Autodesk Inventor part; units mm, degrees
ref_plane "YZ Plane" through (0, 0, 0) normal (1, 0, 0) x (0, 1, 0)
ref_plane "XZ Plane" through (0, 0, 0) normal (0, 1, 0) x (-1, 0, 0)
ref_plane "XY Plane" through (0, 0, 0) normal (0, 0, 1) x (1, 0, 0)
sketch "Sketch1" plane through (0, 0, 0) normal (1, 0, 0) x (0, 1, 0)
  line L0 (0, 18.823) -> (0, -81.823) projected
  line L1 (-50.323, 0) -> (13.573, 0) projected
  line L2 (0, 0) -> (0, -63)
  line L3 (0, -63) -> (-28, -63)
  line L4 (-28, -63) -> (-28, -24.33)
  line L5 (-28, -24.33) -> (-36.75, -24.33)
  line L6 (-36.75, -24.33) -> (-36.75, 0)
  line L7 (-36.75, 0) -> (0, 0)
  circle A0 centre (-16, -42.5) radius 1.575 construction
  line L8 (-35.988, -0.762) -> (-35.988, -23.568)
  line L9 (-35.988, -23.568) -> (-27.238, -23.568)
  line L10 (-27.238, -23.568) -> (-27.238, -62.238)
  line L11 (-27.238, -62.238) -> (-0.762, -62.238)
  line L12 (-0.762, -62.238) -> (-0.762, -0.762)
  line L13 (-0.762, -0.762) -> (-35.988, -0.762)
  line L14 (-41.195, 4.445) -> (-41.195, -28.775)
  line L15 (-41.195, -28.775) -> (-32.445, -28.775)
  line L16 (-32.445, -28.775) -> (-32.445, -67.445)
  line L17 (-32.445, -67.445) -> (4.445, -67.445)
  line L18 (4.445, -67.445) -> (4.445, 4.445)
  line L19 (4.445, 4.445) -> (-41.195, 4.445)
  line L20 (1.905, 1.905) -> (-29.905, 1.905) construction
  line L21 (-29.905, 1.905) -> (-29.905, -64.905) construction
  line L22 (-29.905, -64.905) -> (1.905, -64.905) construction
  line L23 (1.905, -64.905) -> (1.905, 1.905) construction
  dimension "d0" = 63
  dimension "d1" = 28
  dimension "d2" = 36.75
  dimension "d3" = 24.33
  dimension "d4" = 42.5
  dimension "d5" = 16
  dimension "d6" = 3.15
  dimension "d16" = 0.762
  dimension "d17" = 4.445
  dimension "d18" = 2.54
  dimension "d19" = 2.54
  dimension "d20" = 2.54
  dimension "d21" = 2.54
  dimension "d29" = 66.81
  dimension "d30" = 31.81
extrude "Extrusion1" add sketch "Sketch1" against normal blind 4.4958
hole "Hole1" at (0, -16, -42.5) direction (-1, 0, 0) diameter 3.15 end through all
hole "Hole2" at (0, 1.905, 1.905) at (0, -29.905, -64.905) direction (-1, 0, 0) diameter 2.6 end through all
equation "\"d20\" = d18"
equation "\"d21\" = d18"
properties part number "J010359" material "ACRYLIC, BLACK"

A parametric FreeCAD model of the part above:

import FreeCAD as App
import Part
import Sketcher
Q = App.Units.Quantity


def add_polygon(sketch, points):
    """Adds a closed chain of lines whose ends are joined by coincident constraints."""
    first, n = sketch.GeometryCount, len(points)
    for a, b in zip(points, points[1:] + points[:1]):
        sketch.addGeometry(Part.LineSegment(App.Vector(*a, 0), App.Vector(*b, 0)), False)
    for i in range(n):
        sketch.addConstraint(Sketcher.Constraint("Coincident", first + i, 2, first + (i + 1) % n, 1))

doc = App.newDocument("Part")
params = doc.addObject("Spreadsheet::Sheet", "Params")
for row, (alias, value) in enumerate([
    ("sketch1_width", "45.64 mm"),
    ("sketch1_width2", "8.75 mm"),
    ("sketch1_height", "71.89 mm"),
    ("sketch1_height2", "33.22 mm"),
    ("pad1_length", "4.4958 mm"),
    ("sketch2_diameter", "3.15 mm"),
    ("hole_diameter", "3.15 mm"),
    ("sketch3_diameter", "2.6 mm"),
    ("hole2_diameter", "2.6 mm"),
], start=1):
    params.set(f"A{row}", alias)
    params.set(f"B{row}", "=" + value)
    params.setAlias(f"B{row}", alias)

body = doc.addObject("PartDesign::Body", "Body")

# Sketch on YZ plane
sketch1 = doc.addObject("Sketcher::SketchObject", "Sketch")
body.addObject(sketch1)
sketch1.AttachmentSupport = (doc.YZ_Plane, [""])
sketch1.MapMode = "FlatFace"
add_polygon(sketch1, [(4, -67), (4, 4), (-41, 4), (-41, -29), (-32, -29), (-32, -67)])  # lines 0-5
add_polygon(sketch1, [(-36, -1), (-1, -1), (-1, -62), (-27, -62), (-27, -24), (-36, -24)])  # lines 6-11
sketch1.addConstraint([
    Sketcher.Constraint("Vertical", 0),
    Sketcher.Constraint("Horizontal", 1),
    Sketcher.Constraint("Vertical", 2),
    Sketcher.Constraint("Horizontal", 3),
    Sketcher.Constraint("Vertical", 4),
    Sketcher.Constraint("Horizontal", 5),
    Sketcher.Constraint("Horizontal", 6),
    Sketcher.Constraint("Vertical", 7),
    Sketcher.Constraint("Horizontal", 8),
    Sketcher.Constraint("Vertical", 9),
    Sketcher.Constraint("Horizontal", 10),
    Sketcher.Constraint("Vertical", 11),
    Sketcher.Constraint("Equal", 3, 10),
    Sketcher.Constraint("Equal", 4, 9),
    Sketcher.Constraint("DistanceX", -1, 1, 0, 2, Q("4.445 mm")),
    Sketcher.Constraint("DistanceY", -1, 1, 0, 2, Q("4.445 mm")),
    Sketcher.Constraint("DistanceX", 6, 2, -1, 1, Q("0.762 mm")),
    Sketcher.Constraint("DistanceY", 6, 2, -1, 1, Q("0.762 mm")),
    Sketcher.Constraint("DistanceX", 1, 2, 1, 1, Q("45.64 mm")),
    Sketcher.Constraint("DistanceX", 3, 1, 3, 2, Q("8.75 mm")),
    Sketcher.Constraint("DistanceY", 0, 1, 0, 2, Q("71.89 mm")),
    Sketcher.Constraint("DistanceY", 2, 2, 2, 1, Q("33.22 mm")),
    Sketcher.Constraint("DistanceX", 6, 1, 6, 2, Q("35.226 mm")),
    Sketcher.Constraint("DistanceY", 7, 2, 7, 1, Q("61.476 mm")),
])
sketch1.setExpression("Constraints[30]", "Params.sketch1_width")
sketch1.setExpression("Constraints[31]", "Params.sketch1_width2")
sketch1.setExpression("Constraints[32]", "Params.sketch1_height")
sketch1.setExpression("Constraints[33]", "Params.sketch1_height2")
pad1 = doc.addObject("PartDesign::Pad", "Pad")
body.addObject(pad1)
pad1.Profile = sketch1
pad1.setExpression("Length", "Params.pad1_length")
pad1.Reversed = True

# Sketch on YZ plane
sketch2 = doc.addObject("Sketcher::SketchObject", "Sketch001")
body.addObject(sketch2)
sketch2.AttachmentSupport = (doc.YZ_Plane, [""])
sketch2.MapMode = "FlatFace"
sketch2.addGeometry(Part.Circle(App.Vector(-16, -42.5, 0), App.Vector(0, 0, 1), 1.6), False)
sketch2.addConstraint([
    Sketcher.Constraint("Diameter", 0, Q("3.15 mm")),
    Sketcher.Constraint("DistanceX", 0, 3, -1, 1, Q("16 mm")),
    Sketcher.Constraint("DistanceY", 0, 3, -1, 1, Q("42.5 mm")),
])
sketch2.setExpression("Constraints[0]", "Params.sketch2_diameter")
doc.recompute()
hole = doc.addObject("PartDesign::Hole", "Hole")
body.addObject(hole)
hole.Profile = sketch2
hole.ThreadType = "None"
hole.setExpression("Diameter", "Params.hole_diameter")
hole.DepthType = "ThroughAll"

# Sketch on YZ plane
sketch3 = doc.addObject("Sketcher::SketchObject", "Sketch002")
body.addObject(sketch3)
sketch3.AttachmentSupport = (doc.YZ_Plane, [""])
sketch3.MapMode = "FlatFace"
sketch3.addGeometry([
    Part.Circle(App.Vector(1.9, 1.9, 0), App.Vector(0, 0, 1), 1.3),
    Part.Circle(App.Vector(-29.9, -64.9, 0), App.Vector(0, 0, 1), 1.3),
], False)
sketch3.addConstraint([
    Sketcher.Constraint("Equal", 0, 1),
    Sketcher.Constraint("Diameter", 0, Q("2.6 mm")),
    Sketcher.Constraint("DistanceX", 1, 3, 0, 3, Q("31.81 mm")),
    Sketcher.Constraint("DistanceY", 1, 3, 0, 3, Q("66.81 mm")),
    Sketcher.Constraint("DistanceX", -1, 1, 0, 3, Q("1.905 mm")),
    Sketcher.Constraint("DistanceY", -1, 1, 0, 3, Q("1.905 mm")),
])
sketch3.setExpression("Constraints[1]", "Params.sketch3_diameter")
doc.recompute()
hole2 = doc.addObject("PartDesign::Hole", "Hole001")
body.addObject(hole2)
hole2.Profile = sketch3
hole2.ThreadType = "None"
hole2.setExpression("Diameter", "Params.hole2_diameter")
hole2.DepthType = "ThroughAll"

doc.recompute()
